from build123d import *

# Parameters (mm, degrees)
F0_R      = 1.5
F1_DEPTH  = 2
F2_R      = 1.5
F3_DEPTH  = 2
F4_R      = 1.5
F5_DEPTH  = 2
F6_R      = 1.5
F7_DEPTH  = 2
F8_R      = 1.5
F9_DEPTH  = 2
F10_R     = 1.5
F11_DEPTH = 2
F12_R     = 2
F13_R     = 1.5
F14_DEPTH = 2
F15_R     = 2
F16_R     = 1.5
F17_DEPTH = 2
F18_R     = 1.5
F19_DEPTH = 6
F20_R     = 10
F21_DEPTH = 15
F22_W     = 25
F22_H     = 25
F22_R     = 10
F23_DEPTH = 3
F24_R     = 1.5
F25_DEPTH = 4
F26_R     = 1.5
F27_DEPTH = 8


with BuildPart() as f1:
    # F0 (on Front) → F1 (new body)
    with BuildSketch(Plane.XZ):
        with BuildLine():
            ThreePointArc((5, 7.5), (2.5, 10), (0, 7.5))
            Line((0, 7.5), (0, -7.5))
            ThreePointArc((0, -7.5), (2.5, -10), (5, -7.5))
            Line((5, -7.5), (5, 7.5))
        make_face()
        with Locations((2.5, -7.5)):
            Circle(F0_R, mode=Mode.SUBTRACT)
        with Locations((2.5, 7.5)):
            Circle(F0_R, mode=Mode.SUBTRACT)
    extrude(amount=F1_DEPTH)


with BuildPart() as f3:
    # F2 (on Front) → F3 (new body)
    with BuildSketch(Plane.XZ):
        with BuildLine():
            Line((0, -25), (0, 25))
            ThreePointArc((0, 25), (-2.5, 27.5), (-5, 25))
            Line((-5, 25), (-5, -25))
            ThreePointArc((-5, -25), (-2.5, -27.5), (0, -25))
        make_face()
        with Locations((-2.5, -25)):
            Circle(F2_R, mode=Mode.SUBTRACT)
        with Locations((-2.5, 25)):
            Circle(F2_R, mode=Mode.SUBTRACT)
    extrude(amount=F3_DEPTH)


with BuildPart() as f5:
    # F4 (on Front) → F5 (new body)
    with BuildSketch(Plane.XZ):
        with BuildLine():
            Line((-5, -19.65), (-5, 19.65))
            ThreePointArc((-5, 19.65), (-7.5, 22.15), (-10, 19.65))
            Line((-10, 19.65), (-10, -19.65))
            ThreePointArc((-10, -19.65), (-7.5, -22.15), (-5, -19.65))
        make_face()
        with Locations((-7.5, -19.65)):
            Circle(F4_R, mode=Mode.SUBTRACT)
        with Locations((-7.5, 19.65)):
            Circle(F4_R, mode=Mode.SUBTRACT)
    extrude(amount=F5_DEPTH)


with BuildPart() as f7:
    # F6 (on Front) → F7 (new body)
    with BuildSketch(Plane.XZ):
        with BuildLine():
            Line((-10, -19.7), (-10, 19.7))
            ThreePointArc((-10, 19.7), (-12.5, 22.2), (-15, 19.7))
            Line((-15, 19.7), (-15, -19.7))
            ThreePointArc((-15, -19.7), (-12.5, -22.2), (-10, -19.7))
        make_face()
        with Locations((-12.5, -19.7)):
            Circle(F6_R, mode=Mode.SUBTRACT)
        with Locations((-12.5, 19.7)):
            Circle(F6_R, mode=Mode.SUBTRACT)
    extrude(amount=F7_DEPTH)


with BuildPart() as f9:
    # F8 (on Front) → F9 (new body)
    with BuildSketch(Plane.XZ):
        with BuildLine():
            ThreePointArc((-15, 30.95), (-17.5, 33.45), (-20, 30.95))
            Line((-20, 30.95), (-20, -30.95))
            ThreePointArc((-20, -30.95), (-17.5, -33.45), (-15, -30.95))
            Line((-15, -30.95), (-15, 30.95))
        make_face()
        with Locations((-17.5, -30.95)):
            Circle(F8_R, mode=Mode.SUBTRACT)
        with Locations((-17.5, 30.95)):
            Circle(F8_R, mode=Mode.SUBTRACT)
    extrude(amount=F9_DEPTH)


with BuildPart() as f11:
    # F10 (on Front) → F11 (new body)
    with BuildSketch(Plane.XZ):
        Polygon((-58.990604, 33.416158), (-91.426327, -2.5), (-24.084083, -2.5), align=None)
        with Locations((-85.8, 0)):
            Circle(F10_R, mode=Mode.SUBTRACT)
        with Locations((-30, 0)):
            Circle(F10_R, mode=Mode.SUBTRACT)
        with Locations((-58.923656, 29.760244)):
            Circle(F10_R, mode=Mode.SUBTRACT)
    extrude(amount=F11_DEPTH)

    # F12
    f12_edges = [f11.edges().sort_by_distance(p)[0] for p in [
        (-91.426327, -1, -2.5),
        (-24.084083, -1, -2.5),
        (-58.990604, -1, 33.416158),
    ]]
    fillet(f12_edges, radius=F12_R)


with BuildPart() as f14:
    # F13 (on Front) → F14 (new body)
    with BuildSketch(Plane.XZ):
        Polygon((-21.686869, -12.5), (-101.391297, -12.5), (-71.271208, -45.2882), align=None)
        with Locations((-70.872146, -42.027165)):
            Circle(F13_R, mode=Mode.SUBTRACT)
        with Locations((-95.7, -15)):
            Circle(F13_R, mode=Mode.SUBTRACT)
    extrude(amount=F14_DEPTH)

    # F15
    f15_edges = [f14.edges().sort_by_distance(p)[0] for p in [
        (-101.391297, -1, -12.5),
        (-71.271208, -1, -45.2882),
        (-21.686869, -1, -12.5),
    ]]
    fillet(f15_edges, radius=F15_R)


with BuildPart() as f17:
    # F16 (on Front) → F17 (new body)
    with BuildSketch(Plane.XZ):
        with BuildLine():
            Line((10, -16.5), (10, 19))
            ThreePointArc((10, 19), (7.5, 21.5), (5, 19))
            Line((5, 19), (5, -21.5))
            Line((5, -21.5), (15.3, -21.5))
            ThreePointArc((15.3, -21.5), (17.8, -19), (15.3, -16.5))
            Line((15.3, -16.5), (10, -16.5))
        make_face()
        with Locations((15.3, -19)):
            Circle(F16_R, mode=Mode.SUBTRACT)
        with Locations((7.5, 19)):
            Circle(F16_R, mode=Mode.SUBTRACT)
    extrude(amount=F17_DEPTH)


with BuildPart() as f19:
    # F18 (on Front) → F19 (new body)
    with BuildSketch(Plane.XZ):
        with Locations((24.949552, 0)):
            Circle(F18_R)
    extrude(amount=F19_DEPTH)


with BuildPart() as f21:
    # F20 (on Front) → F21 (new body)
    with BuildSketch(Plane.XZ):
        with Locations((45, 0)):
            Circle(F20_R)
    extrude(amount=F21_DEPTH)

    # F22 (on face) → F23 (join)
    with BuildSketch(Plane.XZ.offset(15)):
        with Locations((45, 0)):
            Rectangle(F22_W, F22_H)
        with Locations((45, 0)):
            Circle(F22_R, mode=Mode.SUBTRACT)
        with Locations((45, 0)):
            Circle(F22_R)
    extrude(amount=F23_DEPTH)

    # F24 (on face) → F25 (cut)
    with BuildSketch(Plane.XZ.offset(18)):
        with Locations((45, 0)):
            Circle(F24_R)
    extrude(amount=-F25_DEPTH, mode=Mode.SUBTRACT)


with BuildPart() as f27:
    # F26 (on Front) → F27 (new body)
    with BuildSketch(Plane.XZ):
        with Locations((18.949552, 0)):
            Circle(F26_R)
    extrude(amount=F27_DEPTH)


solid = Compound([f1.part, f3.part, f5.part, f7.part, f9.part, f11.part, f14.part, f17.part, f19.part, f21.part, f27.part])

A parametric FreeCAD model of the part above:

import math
import FreeCAD as App
import Part
import Sketcher
from FreeCAD import Vector
Q = App.Units.Quantity


def edges_at(feature, points):
    """Names of the edges that pass closest to the given points."""
    edges = feature.Shape.Edges
    near = lambda p: min(range(len(edges)), key=lambda i: edges[i].distToShape(Part.Vertex(*p))[0])
    return sorted({f"Edge{near(p) + 1}" for p in points})

doc = App.newDocument("Part")
body = doc.addObject("PartDesign::Body", "Body")

# Sketch on XZ plane
sketch1 = body.newObject("Sketcher::SketchObject", "Sketch")
sketch1.AttachmentSupport = (doc.getObject("XZ_Plane"), [""])
sketch1.MapMode = "FlatFace"
sketch1.addGeometry([
    Part.ArcOfCircle(Part.Circle(Vector(2.5, 7.5, 0), Vector(0, 0, 1), 2.5), math.radians(0), math.radians(180)),  # 0
    Part.LineSegment(Vector(0, 7.5, 0), Vector(0, -7.5, 0)),  # 1
    Part.ArcOfCircle(Part.Circle(Vector(2.5, -7.5, 0), Vector(0, 0, 1), 2.5), math.radians(180), math.radians(360)),  # 2
    Part.LineSegment(Vector(5, -7.5, 0), Vector(5, 7.5, 0)),  # 3
    Part.Circle(Vector(2.5, -7.5, 0), Vector(0, 0, 1), 1.5),  # 4
    Part.Circle(Vector(2.5, 7.5, 0), Vector(0, 0, 1), 1.5),  # 5
], False)
sketch1.addConstraint([
    Sketcher.Constraint("Tangent", 0, 2, 1, 1),
    Sketcher.Constraint("Tangent", 1, 2, 2, 1),
    Sketcher.Constraint("Tangent", 2, 2, 3, 1),
    Sketcher.Constraint("Tangent", 3, 2, 0, 1),
    Sketcher.Constraint("Vertical", 1),
    Sketcher.Constraint("Vertical", 3),
    Sketcher.Constraint("Coincident", 4, 3, 2, 3),
    Sketcher.Constraint("Coincident", 5, 3, 0, 3),
    Sketcher.Constraint("Equal", 4, 5),
    Sketcher.Constraint("Symmetric", 0, 2, 1, 2, -1, 1),
    Sketcher.Constraint("Diameter", 4, Q("3 mm")),
    Sketcher.Constraint("Radius", 0, Q("2.5 mm")),
    Sketcher.Constraint("DistanceY", 1, 2, 1, 1, Q("15 mm")),
])
pad1 = body.newObject("PartDesign::Pad", "Pad")
pad1.Profile = sketch1
pad1.Length = 2
body2 = doc.addObject("PartDesign::Body", "Body001")

# Sketch on XZ plane
sketch2 = body2.newObject("Sketcher::SketchObject", "Sketch001")
sketch2.AttachmentSupport = (doc.getObject("XZ_Plane001"), [""])
sketch2.MapMode = "FlatFace"
sketch2.addGeometry([
    Part.LineSegment(Vector(0, -25, 0), Vector(0, 25, 0)),  # 0
    Part.ArcOfCircle(Part.Circle(Vector(-2.5, 25, 0), Vector(0, 0, 1), 2.5), math.radians(0), math.radians(180)),  # 1
    Part.LineSegment(Vector(-5, 25, 0), Vector(-5, -25, 0)),  # 2
    Part.ArcOfCircle(Part.Circle(Vector(-2.5, -25, 0), Vector(0, 0, 1), 2.5), math.radians(180), math.radians(360)),  # 3
    Part.Circle(Vector(-2.5, -25, 0), Vector(0, 0, 1), 1.5),  # 4
    Part.Circle(Vector(-2.5, 25, 0), Vector(0, 0, 1), 1.5),  # 5
], False)
sketch2.addConstraint([
    Sketcher.Constraint("Tangent", 0, 2, 1, 1),
    Sketcher.Constraint("Tangent", 1, 2, 2, 1),
    Sketcher.Constraint("Tangent", 2, 2, 3, 1),
    Sketcher.Constraint("Tangent", 3, 2, 0, 1),
    Sketcher.Constraint("Vertical", 0),
    Sketcher.Constraint("Vertical", 2),
    Sketcher.Constraint("Coincident", 4, 3, 3, 3),
    Sketcher.Constraint("Coincident", 5, 3, 1, 3),
    Sketcher.Constraint("Equal", 4, 5),
    Sketcher.Constraint("Symmetric", 0, 2, 3, 2, -1, 1),
    Sketcher.Constraint("Diameter", 4, Q("3 mm")),
    Sketcher.Constraint("Radius", 1, Q("2.5 mm")),
    Sketcher.Constraint("DistanceY", 0, 1, 0, 2, Q("50 mm")),
])
pad2 = body2.newObject("PartDesign::Pad", "Pad001")
pad2.Profile = sketch2
pad2.Length = 2
body3 = doc.addObject("PartDesign::Body", "Body002")

# Sketch on XZ plane
sketch3 = body3.newObject("Sketcher::SketchObject", "Sketch002")
sketch3.AttachmentSupport = (doc.getObject("XZ_Plane002"), [""])
sketch3.MapMode = "FlatFace"
sketch3.addGeometry([
    Part.LineSegment(Vector(-5, -19.65, 0), Vector(-5, 19.65, 0)),  # 0
    Part.ArcOfCircle(Part.Circle(Vector(-7.5, 19.65, 0), Vector(0, 0, 1), 2.5), math.radians(0), math.radians(180)),  # 1
    Part.LineSegment(Vector(-10, 19.65, 0), Vector(-10, -19.65, 0)),  # 2
    Part.ArcOfCircle(Part.Circle(Vector(-7.5, -19.65, 0), Vector(0, 0, 1), 2.5), math.radians(180), math.radians(360)),  # 3
    Part.Circle(Vector(-7.5, -19.65, 0), Vector(0, 0, 1), 1.5),  # 4
    Part.Circle(Vector(-7.5, 19.65, 0), Vector(0, 0, 1), 1.5),  # 5
], False)
sketch3.addConstraint([
    Sketcher.Constraint("Tangent", 0, 2, 1, 1),
    Sketcher.Constraint("Tangent", 1, 2, 2, 1),
    Sketcher.Constraint("Tangent", 2, 2, 3, 1),
    Sketcher.Constraint("Tangent", 3, 2, 0, 1),
    Sketcher.Constraint("Vertical", 0),
    Sketcher.Constraint("Vertical", 2),
    Sketcher.Constraint("Coincident", 4, 3, 3, 3),
    Sketcher.Constraint("Coincident", 5, 3, 1, 3),
    Sketcher.Constraint("Equal", 4, 5),
    Sketcher.Constraint("Diameter", 4, Q("3 mm")),
    Sketcher.Constraint("Radius", 1, Q("2.5 mm")),
    Sketcher.Constraint("DistanceY", 0, 1, 0, 2, Q("39.3 mm")),
    Sketcher.Constraint("DistanceX", 0, 2, -1, 1, Q("5 mm")),
    Sketcher.Constraint("DistanceY", -1, 1, 1, 3, Q("19.65 mm")),
])
pad3 = body3.newObject("PartDesign::Pad", "Pad002")
pad3.Profile = sketch3
pad3.Length = 2
body4 = doc.addObject("PartDesign::Body", "Body003")

# Sketch on XZ plane
sketch4 = body4.newObject("Sketcher::SketchObject", "Sketch003")
sketch4.AttachmentSupport = (doc.getObject("XZ_Plane003"), [""])
sketch4.MapMode = "FlatFace"
sketch4.addGeometry([
    Part.LineSegment(Vector(-10, -19.7, 0), Vector(-10, 19.7, 0)),  # 0
    Part.ArcOfCircle(Part.Circle(Vector(-12.5, 19.7, 0), Vector(0, 0, 1), 2.5), math.radians(0), math.radians(180)),  # 1
    Part.LineSegment(Vector(-15, 19.7, 0), Vector(-15, -19.7, 0)),  # 2
    Part.ArcOfCircle(Part.Circle(Vector(-12.5, -19.7, 0), Vector(0, 0, 1), 2.5), math.radians(180), math.radians(360)),  # 3
    Part.Circle(Vector(-12.5, -19.7, 0), Vector(0, 0, 1), 1.5),  # 4
    Part.Circle(Vector(-12.5, 19.7, 0), Vector(0, 0, 1), 1.5),  # 5
], False)
sketch4.addConstraint([
    Sketcher.Constraint("Tangent", 0, 2, 1, 1),
    Sketcher.Constraint("Tangent", 1, 2, 2, 1),
    Sketcher.Constraint("Tangent", 2, 2, 3, 1),
    Sketcher.Constraint("Tangent", 3, 2, 0, 1),
    Sketcher.Constraint("Vertical", 0),
    Sketcher.Constraint("Vertical", 2),
    Sketcher.Constraint("Coincident", 4, 3, 3, 3),
    Sketcher.Constraint("Coincident", 5, 3, 1, 3),
    Sketcher.Constraint("Equal", 4, 5),
    Sketcher.Constraint("Diameter", 4, Q("3 mm")),
    Sketcher.Constraint("Radius", 1, Q("2.5 mm")),
    Sketcher.Constraint("DistanceY", 0, 1, 0, 2, Q("39.4 mm")),
    Sketcher.Constraint("DistanceX", 0, 2, -1, 1, Q("10 mm")),
    Sketcher.Constraint("DistanceY", -1, 1, 1, 3, Q("19.7 mm")),
])
pad4 = body4.newObject("PartDesign::Pad", "Pad003")
pad4.Profile = sketch4
pad4.Length = 2
body5 = doc.addObject("PartDesign::Body", "Body004")

# Sketch on XZ plane
sketch5 = body5.newObject("Sketcher::SketchObject", "Sketch004")
sketch5.AttachmentSupport = (doc.getObject("XZ_Plane004"), [""])
sketch5.MapMode = "FlatFace"
sketch5.addGeometry([
    Part.ArcOfCircle(Part.Circle(Vector(-17.5, 30.95, 0), Vector(0, 0, 1), 2.5), math.radians(0), math.radians(180)),  # 0
    Part.LineSegment(Vector(-20, 30.95, 0), Vector(-20, -30.95, 0)),  # 1
    Part.ArcOfCircle(Part.Circle(Vector(-17.5, -30.95, 0), Vector(0, 0, 1), 2.5), math.radians(180), math.radians(360)),  # 2
    Part.LineSegment(Vector(-15, -30.95, 0), Vector(-15, 30.95, 0)),  # 3
    Part.Circle(Vector(-17.5, -30.95, 0), Vector(0, 0, 1), 1.5),  # 4
    Part.Circle(Vector(-17.5, 30.95, 0), Vector(0, 0, 1), 1.5),  # 5
], False)
sketch5.addConstraint([
    Sketcher.Constraint("Tangent", 0, 2, 1, 1),
    Sketcher.Constraint("Tangent", 1, 2, 2, 1),
    Sketcher.Constraint("Tangent", 2, 2, 3, 1),
    Sketcher.Constraint("Tangent", 3, 2, 0, 1),
    Sketcher.Constraint("Vertical", 1),
    Sketcher.Constraint("Vertical", 3),
    Sketcher.Constraint("Coincident", 4, 3, 2, 3),
    Sketcher.Constraint("Coincident", 5, 3, 0, 3),
    Sketcher.Constraint("Equal", 4, 5),
    Sketcher.Constraint("Diameter", 4, Q("3 mm")),
    Sketcher.Constraint("Radius", 0, Q("2.5 mm")),
    Sketcher.Constraint("DistanceY", 1, 2, 1, 1, Q("61.9 mm")),
    Sketcher.Constraint("DistanceX", 0, 2, -1, 1, Q("20 mm")),
    Sketcher.Constraint("DistanceY", -1, 1, 0, 3, Q("30.95 mm")),
])
pad5 = body5.newObject("PartDesign::Pad", "Pad004")
pad5.Profile = sketch5
pad5.Length = 2
body6 = doc.addObject("PartDesign::Body", "Body005")

# Sketch on XZ plane
sketch6 = body6.newObject("Sketcher::SketchObject", "Sketch005")
sketch6.AttachmentSupport = (doc.getObject("XZ_Plane005"), [""])
sketch6.MapMode = "FlatFace"
sketch6.addGeometry([
    Part.LineSegment(Vector(-58.990604, 33.416158, 0), Vector(-91.426327, -2.5, 0)),  # 0
    Part.LineSegment(Vector(-91.426327, -2.5, 0), Vector(-24.084083, -2.5, 0)),  # 1
    Part.LineSegment(Vector(-24.084083, -2.5, 0), Vector(-58.990604, 33.416158, 0)),  # 2
    Part.Circle(Vector(-85.8, 0, 0), Vector(0, 0, 1), 1.5),  # 3
    Part.Circle(Vector(-30, 0, 0), Vector(0, 0, 1), 1.5),  # 4
    Part.Circle(Vector(-58.923656, 29.760244, 0), Vector(0, 0, 1), 1.5),  # 5
], False)
sketch6.addConstraint([
    Sketcher.Constraint("Coincident", 0, 2, 1, 1),
    Sketcher.Constraint("Coincident", 1, 2, 2, 1),
    Sketcher.Constraint("Coincident", 2, 2, 0, 1),
    Sketcher.Constraint("Horizontal", 1),
    Sketcher.Constraint("Equal", 3, 4),
    Sketcher.Constraint("Equal", 4, 5),
    Sketcher.Constraint("PointOnObject", 3, 3, -1),
    Sketcher.Constraint("PointOnObject", 4, 3, -1),
    Sketcher.Constraint("Diameter", 3, Q("3 mm")),
    Sketcher.Constraint("DistanceX", 4, 3, -1, 1, Q("30 mm")),
    Sketcher.Constraint("DistanceX", 3, 3, -1, 1, Q("85.8 mm")),
    Sketcher.Constraint("DistanceY", 0, 2, -1, 1, Q("2.5 mm")),
    Sketcher.Constraint("DistanceX", 1, 1, 1, 2, Q("67.342244 mm")),
    Sketcher.Constraint("DistanceY", -1, 1, 2, 2, Q("33.416158 mm")),
    Sketcher.Constraint("DistanceX", 0, 2, 5, 3, Q("32.502671 mm")),
    Sketcher.Constraint("DistanceX", 2, 2, 1, 2, Q("34.906521 mm")),
    Sketcher.Constraint("DistanceX", 5, 3, -1, 1, Q("58.923656 mm")),
    Sketcher.Constraint("DistanceY", -1, 1, 5, 3, Q("29.760244 mm")),
])
pad6 = body6.newObject("PartDesign::Pad", "Pad005")
pad6.Profile = sketch6
pad6.Length = 2
doc.recompute()

fillet = body6.newObject("PartDesign::Fillet", "Fillet")
fillet.Base = (pad6, edges_at(pad6, [(-91.426, -1, -2.5), (-24.084, -1, -2.5), (-58.991, -1, 33.416)]))
fillet.Radius = 2
body7 = doc.addObject("PartDesign::Body", "Body006")

# Sketch on XZ plane
sketch7 = body7.newObject("Sketcher::SketchObject", "Sketch006")
sketch7.AttachmentSupport = (doc.getObject("XZ_Plane006"), [""])
sketch7.MapMode = "FlatFace"
sketch7.addGeometry([
    Part.LineSegment(Vector(-21.686869, -12.5, 0), Vector(-101.391297, -12.5, 0)),  # 0
    Part.LineSegment(Vector(-101.391297, -12.5, 0), Vector(-71.271208, -45.2882, 0)),  # 1
    Part.LineSegment(Vector(-71.271208, -45.2882, 0), Vector(-21.686869, -12.5, 0)),  # 2
    Part.Circle(Vector(-70.872146, -42.027165, 0), Vector(0, 0, 1), 1.5),  # 3
    Part.Circle(Vector(-95.7, -15, 0), Vector(0, 0, 1), 1.5),  # 4
], False)
sketch7.addConstraint([
    Sketcher.Constraint("Coincident", 0, 2, 1, 1),
    Sketcher.Constraint("Coincident", 1, 2, 2, 1),
    Sketcher.Constraint("Coincident", 2, 2, 0, 1),
    Sketcher.Constraint("Horizontal", 0),
    Sketcher.Constraint("Equal", 3, 4),
    Sketcher.Constraint("Diameter", 3, Q("3 mm")),
    Sketcher.Constraint("DistanceY", 4, 3, -1, 1, Q("15 mm")),
    Sketcher.Constraint("DistanceX", 4, 3, -1, 1, Q("95.7 mm")),
    Sketcher.Constraint("DistanceY", 0, 2, -1, 1, Q("12.5 mm")),
    Sketcher.Constraint("DistanceY", 1, 2, -1, 1, Q("45.2882 mm")),
    Sketcher.Constraint("Distance", 1, Q("44.522869 mm")),
    Sketcher.Constraint("DistanceX", 0, 2, 0, 1, Q("79.704428 mm")),
    Sketcher.Constraint("DistanceX", 1, 2, -1, 1, Q("71.271208 mm")),
    Sketcher.Constraint("DistanceX", 0, 2, 3, 3, Q("30.519151 mm")),
    Sketcher.Constraint("DistanceY", 3, 3, -1, 1, Q("42.027165 mm")),
])
pad7 = body7.newObject("PartDesign::Pad", "Pad006")
pad7.Profile = sketch7
pad7.Length = 2
doc.recompute()

fillet2 = body7.newObject("PartDesign::Fillet", "Fillet001")
fillet2.Base = (pad7, edges_at(pad7, [(-101.391, -1, -12.5), (-71.271, -1, -45.288), (-21.687, -1, -12.5)]))
fillet2.Radius = 2
body8 = doc.addObject("PartDesign::Body", "Body007")

# Sketch on XZ plane
sketch8 = body8.newObject("Sketcher::SketchObject", "Sketch007")
sketch8.AttachmentSupport = (doc.getObject("XZ_Plane007"), [""])
sketch8.MapMode = "FlatFace"
sketch8.addGeometry([
    Part.LineSegment(Vector(10, -16.5, 0), Vector(10, 19, 0)),  # 0
    Part.ArcOfCircle(Part.Circle(Vector(7.5, 19, 0), Vector(0, 0, 1), 2.5), math.radians(0), math.radians(180)),  # 1
    Part.LineSegment(Vector(5, 19, 0), Vector(5, -21.5, 0)),  # 2
    Part.LineSegment(Vector(5, -21.5, 0), Vector(15.3, -21.5, 0)),  # 3
    Part.ArcOfCircle(Part.Circle(Vector(15.3, -19, 0), Vector(0, 0, 1), 2.5), math.radians(-90), math.radians(90)),  # 4
    Part.LineSegment(Vector(15.3, -16.5, 0), Vector(10, -16.5, 0)),  # 5
    Part.Circle(Vector(15.3, -19, 0), Vector(0, 0, 1), 1.5),  # 6
    Part.Circle(Vector(7.5, 19, 0), Vector(0, 0, 1), 1.5),  # 7
], False)
sketch8.addConstraint([
    Sketcher.Constraint("Tangent", 0, 2, 1, 1),
    Sketcher.Constraint("Tangent", 1, 2, 2, 1),
    Sketcher.Constraint("Coincident", 2, 2, 3, 1),
    Sketcher.Constraint("Tangent", 3, 2, 4, 1),
    Sketcher.Constraint("Tangent", 4, 2, 5, 1),
    Sketcher.Constraint("Coincident", 5, 2, 0, 1),
    Sketcher.Constraint("Vertical", 0),
    Sketcher.Constraint("Vertical", 2),
    Sketcher.Constraint("Horizontal", 3),
    Sketcher.Constraint("Horizontal", 5),
    Sketcher.Constraint("Coincident", 6, 3, 4, 3),
    Sketcher.Constraint("Coincident", 7, 3, 1, 3),
    Sketcher.Constraint("Equal", 1, 4),
    Sketcher.Constraint("Equal", 6, 7),
    Sketcher.Constraint("Diameter", 6, Q("3 mm")),
    Sketcher.Constraint("Radius", 1, Q("2.5 mm")),
    Sketcher.Constraint("DistanceX", 3, 1, 3, 2, Q("10.3 mm")),
    Sketcher.Constraint("DistanceY", 0, 1, 0, 2, Q("35.5 mm")),
    Sketcher.Constraint("DistanceY", -1, 1, 1, 3, Q("19 mm")),
    Sketcher.Constraint("DistanceX", -1, 1, 0, 2, Q("10 mm")),
])
pad8 = body8.newObject("PartDesign::Pad", "Pad007")
pad8.Profile = sketch8
pad8.Length = 2
body9 = doc.addObject("PartDesign::Body", "Body008")

# Sketch on XZ plane
sketch9 = body9.newObject("Sketcher::SketchObject", "Sketch008")
sketch9.AttachmentSupport = (doc.getObject("XZ_Plane008"), [""])
sketch9.MapMode = "FlatFace"
sketch9.addGeometry(Part.Circle(Vector(24.949552, 0, 0), Vector(0, 0, 1), 1.5), False)
sketch9.addConstraint([
    Sketcher.Constraint("PointOnObject", 0, 3, -1),
    Sketcher.Constraint("Diameter", 0, Q("3 mm")),
    Sketcher.Constraint("DistanceX", -1, 1, 0, 3, Q("24.949552 mm")),
])
pad9 = body9.newObject("PartDesign::Pad", "Pad008")
pad9.Profile = sketch9
pad9.Length = 6
body10 = doc.addObject("PartDesign::Body", "Body009")

# Sketch on XZ plane
sketch10 = body10.newObject("Sketcher::SketchObject", "Sketch009")
sketch10.AttachmentSupport = (doc.getObject("XZ_Plane009"), [""])
sketch10.MapMode = "FlatFace"
sketch10.addGeometry(Part.Circle(Vector(45, 0, 0), Vector(0, 0, 1), 10), False)
sketch10.addConstraint([
    Sketcher.Constraint("PointOnObject", 0, 3, -1),
    Sketcher.Constraint("Diameter", 0, Q("20 mm")),
    Sketcher.Constraint("DistanceX", -1, 1, 0, 3, Q("45 mm")),
])
pad10 = body10.newObject("PartDesign::Pad", "Pad009")
pad10.Profile = sketch10
pad10.Length = 15

# Sketch on XZ plane
sketch11 = body10.newObject("Sketcher::SketchObject", "Sketch010")
sketch11.AttachmentSupport = (doc.getObject("XZ_Plane009"), [""])
sketch11.MapMode = "FlatFace"
sketch11.AttachmentOffset = App.Placement(Vector(0, 0, 15), App.Rotation())
sketch11.addGeometry([
    Part.LineSegment(Vector(32.5, 12.5, 0), Vector(32.5, -12.5, 0)),
    Part.LineSegment(Vector(32.5, -12.5, 0), Vector(57.5, -12.5, 0)),
    Part.LineSegment(Vector(57.5, -12.5, 0), Vector(57.5, 12.5, 0)),
    Part.LineSegment(Vector(57.5, 12.5, 0), Vector(32.5, 12.5, 0)),
], False)
sketch11.addConstraint([
    Sketcher.Constraint("Coincident", 0, 2, 1, 1),
    Sketcher.Constraint("Coincident", 1, 2, 2, 1),
    Sketcher.Constraint("Coincident", 2, 2, 3, 1),
    Sketcher.Constraint("Coincident", 3, 2, 0, 1),
    Sketcher.Constraint("Vertical", 0),
    Sketcher.Constraint("Horizontal", 1),
    Sketcher.Constraint("Vertical", 2),
    Sketcher.Constraint("Horizontal", 3),
    Sketcher.Constraint("Equal", 3, 0),
    Sketcher.Constraint("DistanceX", 1, 1, 1, 2, Q("25 mm")),
    Sketcher.Constraint("DistanceX", -1, 1, 0, 2, Q("32.5 mm")),
    Sketcher.Constraint("DistanceY", 0, 2, -1, 1, Q("12.5 mm")),
])
pad11 = body10.newObject("PartDesign::Pad", "Pad010")
pad11.Profile = sketch11
pad11.Length = 3

# Sketch on XZ plane
sketch12 = body10.newObject("Sketcher::SketchObject", "Sketch011")
sketch12.AttachmentSupport = (doc.getObject("XZ_Plane009"), [""])
sketch12.MapMode = "FlatFace"
sketch12.AttachmentOffset = App.Placement(Vector(0, 0, 18), App.Rotation())
sketch12.addGeometry(Part.Circle(Vector(45, 0, 0), Vector(0, 0, 1), 1.5), False)
sketch12.addConstraint([
    Sketcher.Constraint("PointOnObject", 0, 3, -1),
    Sketcher.Constraint("Diameter", 0, Q("3 mm")),
    Sketcher.Constraint("DistanceX", -1, 1, 0, 3, Q("45 mm")),
])
pocket1 = body10.newObject("PartDesign::Pocket", "Pocket")
pocket1.Profile = sketch12
pocket1.Length = 4
body11 = doc.addObject("PartDesign::Body", "Body010")

# Sketch on XZ plane
sketch13 = body11.newObject("Sketcher::SketchObject", "Sketch012")
sketch13.AttachmentSupport = (doc.getObject("XZ_Plane010"), [""])
sketch13.MapMode = "FlatFace"
sketch13.addGeometry(Part.Circle(Vector(18.949552, 0, 0), Vector(0, 0, 1), 1.5), False)
sketch13.addConstraint([
    Sketcher.Constraint("PointOnObject", 0, 3, -1),
    Sketcher.Constraint("Diameter", 0, Q("3 mm")),
    Sketcher.Constraint("DistanceX", -1, 1, 0, 3, Q("18.949552 mm")),
])
pad12 = body11.newObject("PartDesign::Pad", "Pad011")
pad12.Profile = sketch13
pad12.Length = 8

doc.recompute()
